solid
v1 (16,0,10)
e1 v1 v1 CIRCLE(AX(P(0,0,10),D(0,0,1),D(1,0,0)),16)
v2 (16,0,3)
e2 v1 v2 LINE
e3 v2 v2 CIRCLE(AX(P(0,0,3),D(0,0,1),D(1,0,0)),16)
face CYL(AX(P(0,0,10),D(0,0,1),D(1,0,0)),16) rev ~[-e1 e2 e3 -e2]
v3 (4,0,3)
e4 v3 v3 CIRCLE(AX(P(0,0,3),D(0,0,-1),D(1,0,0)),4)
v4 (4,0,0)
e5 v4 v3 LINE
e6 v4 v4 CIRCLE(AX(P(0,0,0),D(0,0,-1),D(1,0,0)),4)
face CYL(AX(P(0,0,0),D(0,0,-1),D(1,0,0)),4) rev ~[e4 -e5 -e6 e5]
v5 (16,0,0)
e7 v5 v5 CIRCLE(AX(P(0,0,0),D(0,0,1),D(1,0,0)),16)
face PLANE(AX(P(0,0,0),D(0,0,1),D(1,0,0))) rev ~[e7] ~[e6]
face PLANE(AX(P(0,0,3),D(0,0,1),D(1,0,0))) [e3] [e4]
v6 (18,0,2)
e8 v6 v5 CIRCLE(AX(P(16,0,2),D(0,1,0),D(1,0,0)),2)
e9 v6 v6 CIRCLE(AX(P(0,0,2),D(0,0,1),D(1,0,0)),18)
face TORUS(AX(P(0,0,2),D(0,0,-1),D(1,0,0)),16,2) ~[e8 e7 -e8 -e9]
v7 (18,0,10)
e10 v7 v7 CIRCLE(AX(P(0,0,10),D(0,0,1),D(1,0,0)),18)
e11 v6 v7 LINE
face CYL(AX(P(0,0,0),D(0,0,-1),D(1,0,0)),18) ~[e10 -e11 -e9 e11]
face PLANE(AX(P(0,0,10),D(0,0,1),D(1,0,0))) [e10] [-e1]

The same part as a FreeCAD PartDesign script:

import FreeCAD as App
import Part
import Sketcher

V = App.Vector


def edges_at(feature, points):
    """Names of the edges that pass closest to the given points."""
    edges = feature.Shape.Edges
    near = lambda p: min(range(len(edges)), key=lambda i: edges[i].distToShape(Part.Vertex(*p))[0])
    return sorted({f"Edge{near(p) + 1}" for p in points})

doc = App.newDocument("Part")
body = doc.addObject("PartDesign::Body", "Body")

# Sketch on XY plane
sketch1 = body.newObject("Sketcher::SketchObject", "Sketch")
sketch1.AttachmentSupport = (doc.getObject("XY_Plane"), [""])
sketch1.MapMode = "FlatFace"
sketch1.addGeometry(Part.Circle(V(0, 0, 0), V(0, 0, 1), 18), False)
sketch1.addConstraint([
    Sketcher.Constraint("Coincident", 0, 3, -1, 1),
    Sketcher.Constraint("Diameter", 0, 36.0),
])
pad1 = body.newObject("PartDesign::Pad", "Pad")
pad1.Profile = sketch1
pad1.Length = 10

# Sketch on XY plane
sketch2 = body.newObject("Sketcher::SketchObject", "Sketch001")
sketch2.AttachmentSupport = (doc.getObject("XY_Plane"), [""])
sketch2.MapMode = "FlatFace"
sketch2.AttachmentOffset = App.Placement(V(0, 0, 10), App.Rotation())
sketch2.addGeometry(Part.Circle(V(0, 0, 0), V(0, 0, 1), 16), False)
sketch2.addConstraint([
    Sketcher.Constraint("Coincident", 0, 3, -1, 1),
    Sketcher.Constraint("Diameter", 0, 32.0),
])
pocket1 = body.newObject("PartDesign::Pocket", "Pocket")
pocket1.Profile = sketch2
pocket1.Length = 7

# Sketch on XY plane
sketch3 = body.newObject("Sketcher::SketchObject", "Sketch002")
sketch3.AttachmentSupport = (doc.getObject("XY_Plane"), [""])
sketch3.MapMode = "FlatFace"
sketch3.addGeometry(Part.Circle(V(0, 0, 0), V(0, 0, 1), 4), False)
sketch3.addConstraint([
    Sketcher.Constraint("Coincident", 0, 3, -1, 1),
    Sketcher.Constraint("Diameter", 0, 8.0),
])
pocket2 = body.newObject("PartDesign::Pocket", "Pocket001")
pocket2.Profile = sketch3
pocket2.Length = 25
pocket2.Reversed = True
doc.recompute()

fillet = body.newObject("PartDesign::Fillet", "Fillet")
fillet.Base = (pocket2, edges_at(pocket2, [(-18, 0, 0)]))
fillet.Radius = 2

doc.recompute()
